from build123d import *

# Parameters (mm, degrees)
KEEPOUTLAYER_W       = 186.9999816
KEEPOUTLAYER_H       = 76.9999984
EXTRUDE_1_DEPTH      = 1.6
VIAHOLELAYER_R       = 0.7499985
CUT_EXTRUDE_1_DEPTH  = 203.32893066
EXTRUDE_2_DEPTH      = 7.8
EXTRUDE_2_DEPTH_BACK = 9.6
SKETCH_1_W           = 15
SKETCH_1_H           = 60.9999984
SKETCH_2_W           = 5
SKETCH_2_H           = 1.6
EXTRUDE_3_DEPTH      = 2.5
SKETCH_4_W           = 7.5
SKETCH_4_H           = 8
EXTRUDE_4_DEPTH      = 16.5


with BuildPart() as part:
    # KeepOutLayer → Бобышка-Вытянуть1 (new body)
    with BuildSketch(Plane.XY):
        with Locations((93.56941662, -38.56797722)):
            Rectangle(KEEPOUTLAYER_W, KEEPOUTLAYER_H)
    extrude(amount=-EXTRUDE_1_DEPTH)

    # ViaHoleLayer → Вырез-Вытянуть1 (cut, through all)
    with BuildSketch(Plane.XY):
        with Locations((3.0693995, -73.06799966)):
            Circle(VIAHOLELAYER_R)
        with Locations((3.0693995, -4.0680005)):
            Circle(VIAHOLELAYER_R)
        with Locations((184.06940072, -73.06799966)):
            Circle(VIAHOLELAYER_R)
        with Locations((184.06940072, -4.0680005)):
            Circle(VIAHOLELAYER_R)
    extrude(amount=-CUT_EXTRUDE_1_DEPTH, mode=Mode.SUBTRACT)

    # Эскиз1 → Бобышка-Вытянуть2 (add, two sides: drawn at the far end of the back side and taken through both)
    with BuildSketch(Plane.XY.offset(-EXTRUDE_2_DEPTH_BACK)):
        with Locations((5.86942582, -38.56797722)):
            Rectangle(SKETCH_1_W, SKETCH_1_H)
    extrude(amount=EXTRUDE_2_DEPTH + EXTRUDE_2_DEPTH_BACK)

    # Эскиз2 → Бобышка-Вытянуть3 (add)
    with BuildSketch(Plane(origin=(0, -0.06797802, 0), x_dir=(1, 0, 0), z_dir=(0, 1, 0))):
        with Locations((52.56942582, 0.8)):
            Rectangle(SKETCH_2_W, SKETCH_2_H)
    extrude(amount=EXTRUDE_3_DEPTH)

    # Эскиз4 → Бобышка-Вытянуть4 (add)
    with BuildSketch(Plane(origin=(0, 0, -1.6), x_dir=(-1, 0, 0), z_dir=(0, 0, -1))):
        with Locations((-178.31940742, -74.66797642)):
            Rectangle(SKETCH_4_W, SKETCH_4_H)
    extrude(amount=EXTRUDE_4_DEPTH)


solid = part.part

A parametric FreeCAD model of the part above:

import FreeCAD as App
import Part
import Sketcher
from FreeCAD import Vector

doc = App.newDocument("Part")
params = doc.addObject("Spreadsheet::Sheet", "Params")
for row, (alias, value) in enumerate([
    ("sketch1_height", "76.999998 mm"),
    ("pad1_length", "1.6 mm"),
    ("sketch3_width", "15 mm"),
    ("sketch3_height", "60.999998 mm"),
    ("pad2_length", "7.8 mm"),
    ("pad2_length2", "9.6 mm"),
    ("sketch4_width", "5 mm"),
    ("sketch4_height", "1.6 mm"),
    ("pad3_length", "2.5 mm"),
    ("sketch5_height", "8 mm"),
    ("sketch5_width", "7.5 mm"),
    ("pad4_length", "16.5 mm"),
], start=1):
    params.set(f"A{row}", alias)
    params.set(f"B{row}", "=" + value)
    params.setAlias(f"B{row}", alias)

body = doc.addObject("PartDesign::Body", "Body")

# Sketch on XY plane
sketch1 = body.newObject("Sketcher::SketchObject", "Sketch")
sketch1.AttachmentSupport = (doc.getObject("XY_Plane"), [""])
sketch1.MapMode = "FlatFace"
sketch1.addGeometry([
    Part.LineSegment(Vector(0, 0, 0), Vector(0, -77, 0)),
    Part.LineSegment(Vector(0, -77, 0), Vector(187, -77, 0)),
    Part.LineSegment(Vector(187, -77, 0), Vector(187, 0, 0)),
    Part.LineSegment(Vector(187, 0, 0), Vector(0, 0, 0)),
], False)
sketch1.addConstraint([
    Sketcher.Constraint("Coincident", 0, 2, 1, 1),
    Sketcher.Constraint("Coincident", 1, 2, 2, 1),
    Sketcher.Constraint("Coincident", 2, 2, 3, 1),
    Sketcher.Constraint("Coincident", 3, 2, 0, 1),
    Sketcher.Constraint("Vertical", 0),
    Sketcher.Constraint("Horizontal", 1),
    Sketcher.Constraint("Vertical", 2),
    Sketcher.Constraint("Horizontal", 3),
    Sketcher.Constraint("DistanceY", 0, 2, 0, 1, 76.999998),
    Sketcher.Constraint("DistanceX", 1, 1, 1, 2, 186.999982),
    Sketcher.Constraint("DistanceY", 2, 2, -1, 1, 0.067978),
    Sketcher.Constraint("DistanceX", -1, 1, 0, 2, 0.069426),
])
sketch1.setExpression("Constraints[8]", "Params.sketch1_height")
pad1 = body.newObject("PartDesign::Pad", "Pad")
pad1.Profile = sketch1
pad1.setExpression("Length", "Params.pad1_length")
pad1.Reversed = True

# Sketch on XY plane
sketch2 = body.newObject("Sketcher::SketchObject", "Sketch001")
sketch2.AttachmentSupport = (doc.getObject("XY_Plane"), [""])
sketch2.MapMode = "FlatFace"
sketch2.addGeometry([
    Part.Circle(Vector(3.1, -73.1, 0), Vector(0, 0, 1), 0.7),
    Part.Circle(Vector(3.1, -4.1, 0), Vector(0, 0, 1), 0.7),
    Part.Circle(Vector(184.1, -73.1, 0), Vector(0, 0, 1), 0.7),
    Part.Circle(Vector(184.1, -4.1, 0), Vector(0, 0, 1), 0.7),
], False)
sketch2.addConstraint([
    Sketcher.Constraint("Equal", 0, 1),
    Sketcher.Constraint("Equal", 1, 2),
    Sketcher.Constraint("Equal", 2, 3),
    Sketcher.Constraint("Horizontal", 0, 3, 2, 3),
    Sketcher.Constraint("Horizontal", 1, 3, 3, 3),
    Sketcher.Constraint("Vertical", 0, 3, 1, 3),
    Sketcher.Constraint("Vertical", 2, 3, 3, 3),
    Sketcher.Constraint("DistanceY", 0, 3, 1, 3, 68.999999),
    Sketcher.Constraint("DistanceX", 0, 3, 2, 3, 181.000001),
    Sketcher.Constraint("Diameter", 0, 1.499997),
    Sketcher.Constraint("DistanceY", 0, 3, -1, 1, 73.068),
    Sketcher.Constraint("DistanceX", -1, 1, 0, 3, 3.069399),
])
pocket1 = body.newObject("PartDesign::Pocket", "Pocket")
pocket1.Profile = sketch2
pocket1.Type = "ThroughAll"

# Sketch on XY plane
sketch3 = body.newObject("Sketcher::SketchObject", "Sketch002")
sketch3.AttachmentSupport = (doc.getObject("XY_Plane"), [""])
sketch3.MapMode = "FlatFace"
sketch3.addGeometry([
    Part.LineSegment(Vector(-2, -8, 0), Vector(-2, -69, 0)),
    Part.LineSegment(Vector(-2, -69, 0), Vector(13, -69, 0)),
    Part.LineSegment(Vector(13, -69, 0), Vector(13, -8, 0)),
    Part.LineSegment(Vector(13, -8, 0), Vector(-2, -8, 0)),
], False)
sketch3.addConstraint([
    Sketcher.Constraint("Coincident", 0, 2, 1, 1),
    Sketcher.Constraint("Coincident", 1, 2, 2, 1),
    Sketcher.Constraint("Coincident", 2, 2, 3, 1),
    Sketcher.Constraint("Coincident", 3, 2, 0, 1),
    Sketcher.Constraint("Vertical", 0),
    Sketcher.Constraint("Horizontal", 1),
    Sketcher.Constraint("Vertical", 2),
    Sketcher.Constraint("Horizontal", 3),
    Sketcher.Constraint("DistanceX", 1, 1, 1, 2, 15.0),
    Sketcher.Constraint("DistanceY", 0, 2, 0, 1, 60.999998),
    Sketcher.Constraint("DistanceY", 2, 2, -1, 1, 8.067978),
    Sketcher.Constraint("DistanceX", 0, 2, -1, 1, 1.630574),
])
sketch3.setExpression("Constraints[8]", "Params.sketch3_width")
sketch3.setExpression("Constraints[9]", "Params.sketch3_height")
pad2 = body.newObject("PartDesign::Pad", "Pad001")
pad2.Profile = sketch3
pad2.Type = "TwoLengths"
pad2.setExpression("Length", "Params.pad2_length")
pad2.setExpression("Length2", "Params.pad2_length2")

# Sketch on XZ plane
sketch4 = body.newObject("Sketcher::SketchObject", "Sketch003")
sketch4.AttachmentSupport = (doc.getObject("XZ_Plane"), [""])
sketch4.MapMode = "FlatFace"
sketch4.AttachmentOffset = App.Placement(Vector(0, 0, 0.067978), App.Rotation())
sketch4.addGeometry([
    Part.LineSegment(Vector(50.1, -1.6, 0), Vector(50.1, 0, 0)),
    Part.LineSegment(Vector(50.1, 0, 0), Vector(55.1, 0, 0)),
    Part.LineSegment(Vector(55.1, 0, 0), Vector(55.1, -1.6, 0)),
    Part.LineSegment(Vector(55.1, -1.6, 0), Vector(50.1, -1.6, 0)),
], False)
sketch4.addConstraint([
    Sketcher.Constraint("Coincident", 0, 2, 1, 1),
    Sketcher.Constraint("Coincident", 1, 2, 2, 1),
    Sketcher.Constraint("Coincident", 2, 2, 3, 1),
    Sketcher.Constraint("Coincident", 3, 2, 0, 1),
    Sketcher.Constraint("Vertical", 0),
    Sketcher.Constraint("Horizontal", 1),
    Sketcher.Constraint("Vertical", 2),
    Sketcher.Constraint("Horizontal", 3),
    Sketcher.Constraint("PointOnObject", 0, 2, -1),
    Sketcher.Constraint("DistanceX", 1, 1, 1, 2, 5.0),
    Sketcher.Constraint("DistanceY", 0, 1, 0, 2, 1.6),
    Sketcher.Constraint("DistanceX", -1, 1, 0, 2, 50.069426),
])
sketch4.setExpression("Constraints[9]", "Params.sketch4_width")
sketch4.setExpression("Constraints[10]", "Params.sketch4_height")
pad3 = body.newObject("PartDesign::Pad", "Pad002")
pad3.Profile = sketch4
pad3.setExpression("Length", "Params.pad3_length")
pad3.Reversed = True

# Sketch on XY plane
sketch5 = body.newObject("Sketcher::SketchObject", "Sketch004")
sketch5.AttachmentSupport = (doc.getObject("XY_Plane"), [""])
sketch5.MapMode = "FlatFace"
sketch5.AttachmentOffset = App.Placement(Vector(0, 0, -1.6), App.Rotation())
sketch5.addGeometry([
    Part.LineSegment(Vector(182, -71, 0), Vector(182, -79, 0)),
    Part.LineSegment(Vector(182, -79, 0), Vector(175, -79, 0)),
    Part.LineSegment(Vector(175, -79, 0), Vector(175, -71, 0)),
    Part.LineSegment(Vector(175, -71, 0), Vector(182, -71, 0)),
], False)
sketch5.addConstraint([
    Sketcher.Constraint("Coincident", 0, 2, 1, 1),
    Sketcher.Constraint("Coincident", 1, 2, 2, 1),
    Sketcher.Constraint("Coincident", 2, 2, 3, 1),
    Sketcher.Constraint("Coincident", 3, 2, 0, 1),
    Sketcher.Constraint("Vertical", 0),
    Sketcher.Constraint("Horizontal", 1),
    Sketcher.Constraint("Vertical", 2),
    Sketcher.Constraint("Horizontal", 3),
    Sketcher.Constraint("DistanceY", 0, 2, 0, 1, 8.0),
    Sketcher.Constraint("DistanceX", 1, 2, 1, 1, 7.5),
    Sketcher.Constraint("DistanceX", -1, 1, 0, 2, 182.069407),
    Sketcher.Constraint("DistanceY", 0, 2, -1, 1, 78.667976),
])
sketch5.setExpression("Constraints[8]", "Params.sketch5_height")
sketch5.setExpression("Constraints[9]", "Params.sketch5_width")
pad4 = body.newObject("PartDesign::Pad", "Pad003")
pad4.Profile = sketch5
pad4.setExpression("Length", "Params.pad4_length")
pad4.Reversed = True

doc.recompute()
